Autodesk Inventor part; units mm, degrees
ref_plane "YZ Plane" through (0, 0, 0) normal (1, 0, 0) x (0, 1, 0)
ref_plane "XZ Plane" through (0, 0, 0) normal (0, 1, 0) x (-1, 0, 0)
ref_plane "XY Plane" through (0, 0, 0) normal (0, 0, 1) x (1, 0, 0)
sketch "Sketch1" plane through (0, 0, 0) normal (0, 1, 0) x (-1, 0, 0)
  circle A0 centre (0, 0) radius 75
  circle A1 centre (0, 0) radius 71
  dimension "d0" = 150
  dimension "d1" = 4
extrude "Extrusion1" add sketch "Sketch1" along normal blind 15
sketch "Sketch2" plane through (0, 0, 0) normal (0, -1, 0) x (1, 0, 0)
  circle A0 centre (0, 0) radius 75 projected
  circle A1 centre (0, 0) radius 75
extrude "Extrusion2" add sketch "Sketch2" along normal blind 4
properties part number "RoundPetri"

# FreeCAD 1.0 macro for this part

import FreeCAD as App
import Part
import Sketcher

V = App.Vector

doc = App.newDocument("Part")
body = doc.addObject("PartDesign::Body", "Body")

# Sketch on XZ plane
sketch1 = body.newObject("Sketcher::SketchObject", "Sketch")
sketch1.AttachmentSupport = (doc.getObject("XZ_Plane"), [""])
sketch1.MapMode = "FlatFace"
sketch1.addGeometry(Part.Circle(V(0, 0, 0), V(0, 0, 1), 75), False)
sketch1.addGeometry(Part.Circle(V(0, 0, 0), V(0, 0, 1), 71), False)
sketch1.addConstraint(Sketcher.Constraint("Coincident", 0, 3, -1, 1))
sketch1.addConstraint(Sketcher.Constraint("Coincident", 1, 3, -1, 1))
sketch1.addConstraint(Sketcher.Constraint("Diameter", 0, 150.0))
sketch1.addConstraint(Sketcher.Constraint("Diameter", 1, 142.0))
pad1 = body.newObject("PartDesign::Pad", "Pad")
pad1.Profile = sketch1
pad1.Length = 15
pad1.Reversed = True

# Sketch on XZ plane
sketch2 = body.newObject("Sketcher::SketchObject", "Sketch001")
sketch2.AttachmentSupport = (doc.getObject("XZ_Plane"), [""])
sketch2.MapMode = "FlatFace"
sketch2.addGeometry(Part.Circle(V(0, 0, 0), V(0, 0, 1), 75), False)
sketch2.addConstraint(Sketcher.Constraint("Coincident", 0, 3, -1, 1))
sketch2.addConstraint(Sketcher.Constraint("Diameter", 0, 150.0))
pad2 = body.newObject("PartDesign::Pad", "Pad001")
pad2.Profile = sketch2
pad2.Length = 4

doc.recompute()
